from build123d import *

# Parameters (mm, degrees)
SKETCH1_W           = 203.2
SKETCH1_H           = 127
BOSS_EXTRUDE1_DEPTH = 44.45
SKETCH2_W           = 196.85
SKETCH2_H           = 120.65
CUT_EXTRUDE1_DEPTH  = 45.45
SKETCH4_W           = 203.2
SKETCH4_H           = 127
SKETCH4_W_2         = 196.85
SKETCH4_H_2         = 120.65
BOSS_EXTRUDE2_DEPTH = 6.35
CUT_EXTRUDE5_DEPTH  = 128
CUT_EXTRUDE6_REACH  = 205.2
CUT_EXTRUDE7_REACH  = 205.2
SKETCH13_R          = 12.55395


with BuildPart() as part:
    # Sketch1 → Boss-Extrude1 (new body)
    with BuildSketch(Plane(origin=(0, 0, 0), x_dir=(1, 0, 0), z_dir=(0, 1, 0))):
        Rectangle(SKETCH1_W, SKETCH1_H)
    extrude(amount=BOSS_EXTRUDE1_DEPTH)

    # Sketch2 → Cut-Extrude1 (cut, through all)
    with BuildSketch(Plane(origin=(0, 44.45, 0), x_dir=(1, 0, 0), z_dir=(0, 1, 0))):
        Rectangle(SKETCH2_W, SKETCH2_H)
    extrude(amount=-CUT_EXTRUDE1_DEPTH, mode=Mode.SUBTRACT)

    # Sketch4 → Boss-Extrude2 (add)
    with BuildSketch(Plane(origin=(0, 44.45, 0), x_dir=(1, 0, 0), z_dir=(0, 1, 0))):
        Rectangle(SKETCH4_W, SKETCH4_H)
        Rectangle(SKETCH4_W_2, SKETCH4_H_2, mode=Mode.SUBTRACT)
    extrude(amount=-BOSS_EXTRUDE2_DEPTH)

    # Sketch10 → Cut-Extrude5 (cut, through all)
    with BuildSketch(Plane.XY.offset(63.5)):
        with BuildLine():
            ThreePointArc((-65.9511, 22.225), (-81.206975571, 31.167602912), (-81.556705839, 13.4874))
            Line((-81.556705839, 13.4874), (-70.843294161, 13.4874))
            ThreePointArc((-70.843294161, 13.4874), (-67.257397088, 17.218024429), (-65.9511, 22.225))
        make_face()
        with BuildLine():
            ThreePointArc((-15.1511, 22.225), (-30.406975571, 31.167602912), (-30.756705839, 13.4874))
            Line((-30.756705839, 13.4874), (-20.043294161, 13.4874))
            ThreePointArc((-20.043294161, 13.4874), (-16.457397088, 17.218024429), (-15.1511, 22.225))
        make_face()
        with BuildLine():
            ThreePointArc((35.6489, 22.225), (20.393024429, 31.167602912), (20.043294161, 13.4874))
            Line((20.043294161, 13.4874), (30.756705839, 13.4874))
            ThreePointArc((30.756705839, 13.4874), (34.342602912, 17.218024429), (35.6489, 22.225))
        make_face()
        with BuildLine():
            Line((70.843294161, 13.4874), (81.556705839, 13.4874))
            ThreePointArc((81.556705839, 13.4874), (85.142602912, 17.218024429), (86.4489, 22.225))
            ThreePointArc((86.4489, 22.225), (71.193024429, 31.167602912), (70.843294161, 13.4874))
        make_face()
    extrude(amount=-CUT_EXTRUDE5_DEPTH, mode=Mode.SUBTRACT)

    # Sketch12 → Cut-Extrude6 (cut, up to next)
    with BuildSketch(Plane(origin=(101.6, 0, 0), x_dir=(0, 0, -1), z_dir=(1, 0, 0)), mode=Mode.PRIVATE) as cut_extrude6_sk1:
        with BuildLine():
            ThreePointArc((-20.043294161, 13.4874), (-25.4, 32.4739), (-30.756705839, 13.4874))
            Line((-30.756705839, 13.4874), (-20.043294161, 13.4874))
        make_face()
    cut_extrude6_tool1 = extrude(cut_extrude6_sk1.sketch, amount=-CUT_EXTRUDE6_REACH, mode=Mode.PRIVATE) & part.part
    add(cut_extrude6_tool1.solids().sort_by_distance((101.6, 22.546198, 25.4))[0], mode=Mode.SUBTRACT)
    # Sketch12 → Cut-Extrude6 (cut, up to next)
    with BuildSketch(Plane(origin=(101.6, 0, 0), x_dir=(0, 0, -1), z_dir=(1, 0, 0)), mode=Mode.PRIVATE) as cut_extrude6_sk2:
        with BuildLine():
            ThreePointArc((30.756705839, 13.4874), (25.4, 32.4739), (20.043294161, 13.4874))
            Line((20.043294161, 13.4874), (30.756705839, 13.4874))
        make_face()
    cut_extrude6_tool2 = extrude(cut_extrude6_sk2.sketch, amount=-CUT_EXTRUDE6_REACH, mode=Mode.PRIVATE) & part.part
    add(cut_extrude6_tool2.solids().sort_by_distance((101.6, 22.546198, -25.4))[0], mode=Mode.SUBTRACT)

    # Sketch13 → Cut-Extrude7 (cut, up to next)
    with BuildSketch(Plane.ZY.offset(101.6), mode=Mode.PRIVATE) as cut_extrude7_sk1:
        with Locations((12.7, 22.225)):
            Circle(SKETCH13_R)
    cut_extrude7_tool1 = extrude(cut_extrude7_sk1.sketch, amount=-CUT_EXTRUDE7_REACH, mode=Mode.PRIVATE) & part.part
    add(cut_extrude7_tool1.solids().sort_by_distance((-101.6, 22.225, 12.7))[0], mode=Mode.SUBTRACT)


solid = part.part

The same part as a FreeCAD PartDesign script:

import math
import FreeCAD as App
import Part
import Sketcher

V = App.Vector
Q = App.Units.Quantity


def add_polygon(sketch, points):
    """Adds a closed chain of lines whose ends are joined by coincident constraints."""
    first, n = sketch.GeometryCount, len(points)
    for a, b in zip(points, points[1:] + points[:1]):
        sketch.addGeometry(Part.LineSegment(App.Vector(*a, 0), App.Vector(*b, 0)), False)
    for i in range(n):
        sketch.addConstraint(Sketcher.Constraint("Coincident", first + i, 2, first + (i + 1) % n, 1))

doc = App.newDocument("Part")
body = doc.addObject("PartDesign::Body", "Body")

# Sketch on XZ plane
sketch1 = body.newObject("Sketcher::SketchObject", "Sketch")
sketch1.AttachmentSupport = (doc.getObject("XZ_Plane"), [""])
sketch1.MapMode = "FlatFace"
add_polygon(sketch1, [(-102, -64), (-102, 64), (102, 64), (102, -64)])  # lines 0-3
sketch1.addConstraint([
    Sketcher.Constraint("Vertical", 0),
    Sketcher.Constraint("Horizontal", 1),
    Sketcher.Constraint("Vertical", 2),
    Sketcher.Constraint("Horizontal", 3),
    Sketcher.Constraint("Symmetric", 0, 2, 2, 2, -1, 1),
    Sketcher.Constraint("DistanceX", 1, 1, 1, 2, Q("8 in")),
    Sketcher.Constraint("DistanceY", 0, 1, 0, 2, Q("5 in")),
])
pad1 = body.newObject("PartDesign::Pad", "Pad")
pad1.Profile = sketch1
pad1.Length = Q("1.75 in")
pad1.Reversed = True

# Sketch on XZ plane
sketch2 = body.newObject("Sketcher::SketchObject", "Sketch001")
sketch2.AttachmentSupport = (doc.getObject("XZ_Plane"), [""])
sketch2.MapMode = "FlatFace"
sketch2.AttachmentOffset = App.Placement(V(0, 0, -1.75 * 25.4), App.Rotation())
add_polygon(sketch2, [(-98, -60), (-98, 60), (98, 60), (98, -60)])  # lines 0-3
sketch2.addConstraint([
    Sketcher.Constraint("Vertical", 0),
    Sketcher.Constraint("Horizontal", 1),
    Sketcher.Constraint("Vertical", 2),
    Sketcher.Constraint("Horizontal", 3),
    Sketcher.Constraint("Symmetric", 0, 2, 2, 2, -1, 1),
    Sketcher.Constraint("DistanceX", 1, 1, 1, 2, Q("7.75 in")),
    Sketcher.Constraint("DistanceY", 0, 1, 0, 2, Q("4.75 in")),
])
pocket1 = body.newObject("PartDesign::Pocket", "Pocket")
pocket1.Profile = sketch2
pocket1.Type = "ThroughAll"
pocket1.Reversed = True

# Sketch on XZ plane
sketch3 = body.newObject("Sketcher::SketchObject", "Sketch002")
sketch3.AttachmentSupport = (doc.getObject("XZ_Plane"), [""])
sketch3.MapMode = "FlatFace"
sketch3.AttachmentOffset = App.Placement(V(0, 0, -1.75 * 25.4), App.Rotation())
add_polygon(sketch3, [(-102, -64), (-102, 64), (102, 64), (102, -64)])  # lines 0-3
add_polygon(sketch3, [(98, 60), (-98, 60), (-98, -60), (98, -60)])  # lines 4-7
sketch3.addConstraint([
    Sketcher.Constraint("Vertical", 0),
    Sketcher.Constraint("Horizontal", 1),
    Sketcher.Constraint("Vertical", 2),
    Sketcher.Constraint("Horizontal", 3),
    Sketcher.Constraint("Horizontal", 4),
    Sketcher.Constraint("Vertical", 5),
    Sketcher.Constraint("Horizontal", 6),
    Sketcher.Constraint("Vertical", 7),
    Sketcher.Constraint("Symmetric", 0, 2, 2, 2, -1, 1),
    Sketcher.Constraint("Symmetric", 4, 2, 6, 2, -1, 1),
    Sketcher.Constraint("DistanceX", 1, 1, 1, 2, Q("8 in")),
    Sketcher.Constraint("DistanceY", 0, 1, 0, 2, Q("5 in")),
    Sketcher.Constraint("DistanceX", 4, 2, 4, 1, Q("7.75 in")),
    Sketcher.Constraint("DistanceY", 5, 2, 5, 1, Q("4.75 in")),
])
pad2 = body.newObject("PartDesign::Pad", "Pad001")
pad2.Profile = sketch3
pad2.Length = Q("0.25 in")

# Sketch on XY plane
sketch4 = body.newObject("Sketcher::SketchObject", "Sketch003")
sketch4.AttachmentSupport = (doc.getObject("XY_Plane"), [""])
sketch4.MapMode = "FlatFace"
sketch4.AttachmentOffset = App.Placement(V(0, 0, 2.5 * 25.4), App.Rotation())
sketch4.addGeometry([
    Part.ArcOfCircle(Part.Circle(V(-76, 22, 0), V(0, 0, 1), 10), math.radians(0), math.radians(238)),  # 0
    Part.LineSegment(V(-82, 13, 0), V(-71, 13, 0)),  # 1
    Part.ArcOfCircle(Part.Circle(V(-76, 22, 0), V(0, 0, 1), 10), math.radians(-58), math.radians(0)),  # 2
    Part.ArcOfCircle(Part.Circle(V(-25, 22, 0), V(0, 0, 1), 10), math.radians(0), math.radians(238)),  # 3
    Part.LineSegment(V(-31, 13, 0), V(-20, 13, 0)),  # 4
    Part.ArcOfCircle(Part.Circle(V(-25, 22, 0), V(0, 0, 1), 10), math.radians(-58), math.radians(0)),  # 5
    Part.ArcOfCircle(Part.Circle(V(25, 22, 0), V(0, 0, 1), 10), math.radians(0), math.radians(238)),  # 6
    Part.LineSegment(V(20, 13, 0), V(31, 13, 0)),  # 7
    Part.ArcOfCircle(Part.Circle(V(25, 22, 0), V(0, 0, 1), 10), math.radians(-58), math.radians(0)),  # 8
    Part.LineSegment(V(71, 13, 0), V(82, 13, 0)),  # 9
    Part.ArcOfCircle(Part.Circle(V(76, 22, 0), V(0, 0, 1), 10), math.radians(-58), math.radians(0)),  # 10
    Part.ArcOfCircle(Part.Circle(V(76, 22, 0), V(0, 0, 1), 10), math.radians(0), math.radians(238)),  # 11
], False)
sketch4.addConstraint([
    Sketcher.Constraint("Coincident", 0, 2, 1, 1),
    Sketcher.Constraint("Coincident", 1, 2, 2, 1),
    Sketcher.Constraint("Tangent", 2, 2, 0, 1),
    Sketcher.Constraint("Coincident", 3, 2, 4, 1),
    Sketcher.Constraint("Coincident", 4, 2, 5, 1),
    Sketcher.Constraint("Tangent", 5, 2, 3, 1),
    Sketcher.Constraint("Coincident", 6, 2, 7, 1),
    Sketcher.Constraint("Coincident", 7, 2, 8, 1),
    Sketcher.Constraint("Tangent", 8, 2, 6, 1),
    Sketcher.Constraint("Coincident", 9, 2, 10, 1),
    Sketcher.Constraint("Tangent", 10, 2, 11, 1),
    Sketcher.Constraint("Coincident", 11, 2, 9, 1),
    Sketcher.Constraint("Horizontal", 1),
    Sketcher.Constraint("Horizontal", 4),
    Sketcher.Constraint("Horizontal", 7),
    Sketcher.Constraint("Horizontal", 9),
    Sketcher.Constraint("Equal", 0, 2),
    Sketcher.Constraint("Equal", 2, 3),
    Sketcher.Constraint("Equal", 3, 5),
    Sketcher.Constraint("Equal", 5, 6),
    Sketcher.Constraint("Equal", 6, 8),
    Sketcher.Constraint("Equal", 8, 10),
    Sketcher.Constraint("Equal", 10, 11),
    Sketcher.Constraint("Symmetric", 3, 3, 6, 3, -2),
    Sketcher.Constraint("Symmetric", 0, 3, 10, 3, -2),
    Sketcher.Constraint("Horizontal", 2, 3, 3, 3),
    Sketcher.Constraint("Horizontal", 11, 3, 2, 2),
    Sketcher.Constraint("Horizontal", 1, 2, 3, 2),
    Sketcher.Constraint("Horizontal", 2, 2, 5, 2),
    Sketcher.Constraint("Horizontal", 4, 2, 6, 2),
    Sketcher.Constraint("Horizontal", 5, 2, 8, 2),
    Sketcher.Constraint("Horizontal", 7, 2, 9, 2),
    Sketcher.Constraint("Horizontal", 8, 2, 10, 2),
    Sketcher.Constraint("DistanceX", 0, 3, -1, 1, Q("3 in")),
    Sketcher.Constraint("DistanceX", 3, 3, -1, 1, Q("1 in")),
    Sketcher.Constraint("Radius", 0, Q("0.4035 in")),
    Sketcher.Constraint("DistanceY", -1, 1, 0, 3, Q("0.875 in")),
    Sketcher.Constraint("DistanceY", -1, 1, 0, 2, Q("0.531 in")),
])
pocket2 = body.newObject("PartDesign::Pocket", "Pocket001")
pocket2.Profile = sketch4
pocket2.Type = "ThroughAll"

# Sketch on YZ plane
sketch5 = body.newObject("Sketcher::SketchObject", "Sketch004")
sketch5.AttachmentSupport = (doc.getObject("YZ_Plane"), [""])
sketch5.MapMode = "FlatFace"
sketch5.AttachmentOffset = App.Placement(V(0, 0, 4 * 25.4), App.Rotation())
sketch5.addGeometry([
    Part.ArcOfCircle(Part.Circle(V(22, 25, 0), V(0, 0, 1), 10), math.radians(-148), math.radians(148)),
    Part.LineSegment(V(13, 31, 0), V(13, 20, 0)),
], False)
sketch5.addConstraint([
    Sketcher.Constraint("Coincident", 0, 1, 1, 2),
    Sketcher.Constraint("Coincident", 1, 1, 0, 2),
    Sketcher.Constraint("Vertical", 1),
    Sketcher.Constraint("DistanceY", -1, 1, 0, 3, Q("1 in")),
    Sketcher.Constraint("Radius", 0, Q("0.4035 in")),
    Sketcher.Constraint("DistanceX", -1, 1, 0, 3, Q("0.875 in")),
    Sketcher.Constraint("DistanceX", -1, 1, 0, 1, Q("0.531 in")),
])
pocket3 = body.newObject("PartDesign::Pocket", "Pocket002")
pocket3.Profile = sketch5
pocket3.Type = "UpToFirst"

# Sketch on YZ plane
sketch6 = body.newObject("Sketcher::SketchObject", "Sketch005")
sketch6.AttachmentSupport = (doc.getObject("YZ_Plane"), [""])
sketch6.MapMode = "FlatFace"
sketch6.AttachmentOffset = App.Placement(V(0, 0, 4 * 25.4), App.Rotation())
sketch6.addGeometry([
    Part.ArcOfCircle(Part.Circle(V(22, -25, 0), V(0, 0, 1), 10), math.radians(-148), math.radians(148)),
    Part.LineSegment(V(13, -20, 0), V(13, -31, 0)),
], False)
sketch6.addConstraint([
    Sketcher.Constraint("Coincident", 0, 1, 1, 2),
    Sketcher.Constraint("Coincident", 1, 1, 0, 2),
    Sketcher.Constraint("Vertical", 1),
    Sketcher.Constraint("DistanceY", 0, 3, -1, 1, Q("1 in")),
    Sketcher.Constraint("Radius", 0, Q("0.4035 in")),
    Sketcher.Constraint("DistanceX", -1, 1, 0, 3, Q("0.875 in")),
    Sketcher.Constraint("DistanceX", -1, 1, 0, 1, Q("0.531 in")),
])
pocket4 = body.newObject("PartDesign::Pocket", "Pocket003")
pocket4.Profile = sketch6
pocket4.Type = "UpToFirst"

# Sketch on YZ plane
sketch7 = body.newObject("Sketcher::SketchObject", "Sketch006")
sketch7.AttachmentSupport = (doc.getObject("YZ_Plane"), [""])
sketch7.MapMode = "FlatFace"
sketch7.AttachmentOffset = App.Placement(V(0, 0, -4 * 25.4), App.Rotation())
sketch7.addGeometry(Part.Circle(V(22, 13, 0), V(0, 0, 1), 13), False)
sketch7.addConstraint([
    Sketcher.Constraint("Diameter", 0, Q("0.9885 in")),
    Sketcher.Constraint("DistanceY", -1, 1, 0, 3, Q("0.5 in")),
    Sketcher.Constraint("DistanceX", -1, 1, 0, 3, Q("0.875 in")),
])
pocket5 = body.newObject("PartDesign::Pocket", "Pocket004")
pocket5.Profile = sketch7
pocket5.Type = "UpToFirst"
pocket5.Reversed = True

doc.recompute()
